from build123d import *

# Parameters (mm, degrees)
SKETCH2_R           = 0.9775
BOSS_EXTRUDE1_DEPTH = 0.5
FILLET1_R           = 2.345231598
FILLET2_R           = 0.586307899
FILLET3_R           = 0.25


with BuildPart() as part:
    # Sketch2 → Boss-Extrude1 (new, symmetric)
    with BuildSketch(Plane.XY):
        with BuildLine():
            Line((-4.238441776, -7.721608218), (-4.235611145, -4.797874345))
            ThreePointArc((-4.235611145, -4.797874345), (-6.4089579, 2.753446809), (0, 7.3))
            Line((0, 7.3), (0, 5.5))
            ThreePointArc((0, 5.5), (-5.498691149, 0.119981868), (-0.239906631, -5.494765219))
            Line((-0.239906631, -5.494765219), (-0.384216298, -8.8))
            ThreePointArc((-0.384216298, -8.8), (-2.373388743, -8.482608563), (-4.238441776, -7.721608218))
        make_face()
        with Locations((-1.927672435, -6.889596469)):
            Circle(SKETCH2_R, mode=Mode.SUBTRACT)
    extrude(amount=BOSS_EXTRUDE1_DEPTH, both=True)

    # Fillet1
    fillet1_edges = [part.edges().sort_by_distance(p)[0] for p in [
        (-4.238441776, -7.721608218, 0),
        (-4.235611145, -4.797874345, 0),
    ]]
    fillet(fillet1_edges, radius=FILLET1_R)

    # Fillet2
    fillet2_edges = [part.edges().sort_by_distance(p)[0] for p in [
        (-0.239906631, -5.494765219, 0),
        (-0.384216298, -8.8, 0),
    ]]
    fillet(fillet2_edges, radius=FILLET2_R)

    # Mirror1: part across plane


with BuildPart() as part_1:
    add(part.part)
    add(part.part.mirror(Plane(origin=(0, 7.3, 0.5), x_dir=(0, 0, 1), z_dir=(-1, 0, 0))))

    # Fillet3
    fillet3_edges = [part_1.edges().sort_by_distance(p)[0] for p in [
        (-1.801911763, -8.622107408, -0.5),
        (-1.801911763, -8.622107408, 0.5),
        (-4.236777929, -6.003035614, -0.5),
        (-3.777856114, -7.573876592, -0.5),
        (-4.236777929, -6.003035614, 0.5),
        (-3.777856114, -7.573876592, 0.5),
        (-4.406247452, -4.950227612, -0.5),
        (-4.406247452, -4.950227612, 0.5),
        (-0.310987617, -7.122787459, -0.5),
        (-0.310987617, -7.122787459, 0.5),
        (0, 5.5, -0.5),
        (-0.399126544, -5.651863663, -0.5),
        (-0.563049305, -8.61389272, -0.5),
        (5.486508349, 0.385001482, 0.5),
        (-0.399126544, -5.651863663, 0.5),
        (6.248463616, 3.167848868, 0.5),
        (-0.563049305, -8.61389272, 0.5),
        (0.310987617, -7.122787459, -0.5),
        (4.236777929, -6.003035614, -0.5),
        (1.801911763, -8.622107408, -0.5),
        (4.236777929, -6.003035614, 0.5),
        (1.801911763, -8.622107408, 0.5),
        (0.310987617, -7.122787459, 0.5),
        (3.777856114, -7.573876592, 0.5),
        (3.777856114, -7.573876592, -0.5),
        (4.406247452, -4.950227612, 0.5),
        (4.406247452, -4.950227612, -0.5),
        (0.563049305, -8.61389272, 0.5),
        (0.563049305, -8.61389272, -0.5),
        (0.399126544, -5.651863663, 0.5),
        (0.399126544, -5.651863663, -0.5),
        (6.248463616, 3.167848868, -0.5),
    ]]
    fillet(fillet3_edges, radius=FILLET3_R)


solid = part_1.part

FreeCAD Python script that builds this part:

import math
import FreeCAD as App
import Part
import Sketcher
Q = App.Units.Quantity


def edges_at(feature, points):
    """Names of the edges that pass closest to the given points."""
    edges = feature.Shape.Edges
    near = lambda p: min(range(len(edges)), key=lambda i: edges[i].distToShape(Part.Vertex(*p))[0])
    return sorted({f"Edge{near(p) + 1}" for p in points})

doc = App.newDocument("Part")
params = doc.addObject("Spreadsheet::Sheet", "Params")
for row, (alias, value) in enumerate([
    ("sketch1_radius", "5.5 mm"),
    ("sketch1_height", "1.8 mm"),
    ("pad1_length", "1 mm"),
    ("fillet_radius", "2.345232 mm"),
    ("fillet2_radius", "0.586308 mm"),
    ("fillet3_radius", "0.25 mm"),
], start=1):
    params.set(f"A{row}", alias)
    params.set(f"B{row}", "=" + value)
    params.setAlias(f"B{row}", alias)

body = doc.addObject("PartDesign::Body", "Body")

# Sketch on XY plane
sketch1 = body.newObject("Sketcher::SketchObject", "Sketch")
sketch1.AttachmentSupport = (doc.getObject("XY_Plane"), [""])
sketch1.MapMode = "FlatFace"
sketch1.addGeometry([
    Part.LineSegment(App.Vector(-4.2, -4.8, 0), App.Vector(-4.2, -7.7, 0)),  # 0
    Part.ArcOfCircle(Part.Circle(App.Vector(0, 0, 0), App.Vector(0, 0, 1), 8.8), math.radians(-119), math.radians(-93)),  # 1
    Part.LineSegment(App.Vector(-0.4, -8.8, 0), App.Vector(-0.2, -5.5, 0)),  # 2
    Part.ArcOfCircle(Part.Circle(App.Vector(0, 0, 0), App.Vector(0, 0, 1), 5.5), math.radians(90), math.radians(267)),  # 3
    Part.LineSegment(App.Vector(0, 5.5, 0), App.Vector(0, 7.3, 0)),  # 4
    Part.ArcOfCircle(Part.Circle(App.Vector(0, 0.5, 0), App.Vector(0, 0, 1), 6.8), math.radians(90), math.radians(231)),  # 5
    Part.Circle(App.Vector(-1.9, -6.9, 0), App.Vector(0, 0, 1), 1),  # 6
], False)
sketch1.addConstraint([
    Sketcher.Constraint("Coincident", 0, 2, 1, 1),
    Sketcher.Constraint("Coincident", 1, 2, 2, 1),
    Sketcher.Constraint("Coincident", 2, 2, 3, 2),
    Sketcher.Constraint("Coincident", 3, 1, 4, 1),
    Sketcher.Constraint("Coincident", 4, 2, 5, 1),
    Sketcher.Constraint("Coincident", 5, 2, 0, 1),
    Sketcher.Constraint("Vertical", 4),
    Sketcher.Constraint("Coincident", 1, 3, -1, 1),
    Sketcher.Constraint("Coincident", 3, 3, -1, 1),
    Sketcher.Constraint("PointOnObject", 5, 3, -2),
    Sketcher.Constraint("PointOnObject", 3, 1, -2),
    Sketcher.Constraint("Radius", 3, Q("5.5 mm")),
    Sketcher.Constraint("Diameter", 6, Q("1.955 mm")),
    Sketcher.Constraint("DistanceY", 4, 1, 4, 2, Q("1.8 mm")),
    Sketcher.Constraint("Angle", 2, Q("87.5 deg")),
    Sketcher.Constraint("DistanceY", 1, 2, -1, 1, Q("8.8 mm")),
    Sketcher.Constraint("Radius", 1, Q("8.808384 mm")),
    Sketcher.Constraint("Radius", 5, Q("6.790406 mm")),
    Sketcher.Constraint("DistanceY", 0, 2, 5, 3, Q("8.231202 mm")),
    Sketcher.Constraint("DistanceX", 5, 2, -1, 1, Q("4.235611 mm")),
    Sketcher.Constraint("DistanceY", 6, 3, 5, 3, Q("7.39919 mm")),
    Sketcher.Constraint("DistanceX", 0, 2, 6, 3, Q("2.310769 mm")),
])
sketch1.setExpression("Constraints[11]", "Params.sketch1_radius")
sketch1.setExpression("Constraints[13]", "Params.sketch1_height")
pad1 = body.newObject("PartDesign::Pad", "Pad")
pad1.Profile = sketch1
pad1.setExpression("Length", "Params.pad1_length")
pad1.Midplane = True
doc.recompute()

fillet = body.newObject("PartDesign::Fillet", "Fillet")
fillet.Base = (pad1, edges_at(pad1, [(-4.238, -7.722, 0), (-4.236, -4.798, 0)]))
fillet.setExpression("Radius", "Params.fillet_radius")
doc.recompute()

fillet2 = body.newObject("PartDesign::Fillet", "Fillet001")
fillet2.Base = (fillet, edges_at(fillet, [(-0.24, -5.495, 0), (-0.384, -8.8, 0)]))
fillet2.setExpression("Radius", "Params.fillet2_radius")
body2 = doc.addObject("PartDesign::Body", "Body001")
doc.recompute()

body2.BaseFeature = body
doc.recompute()

mirroring = doc.addObject("Part::Mirroring", "Mirroring")
mirroring.Source = body
mirroring.Base = App.Vector(0, 7.3, 0.5)
mirroring.Normal = App.Vector(-1, 0, 0)
body3 = doc.addObject("PartDesign::Body", "Body002")
body3.BaseFeature = mirroring
boolean = body2.newObject("PartDesign::Boolean", "Boolean")
boolean.Type = "Fuse"
boolean.addObjects([body3])
doc.recompute()

fillet3 = body2.newObject("PartDesign::Fillet", "Fillet002")
fillet3.Base = (boolean, edges_at(boolean, [
    (-1.802, -8.622, -0.5),
    (-1.802, -8.622, 0.5),
    (-4.237, -6.003, -0.5),
    (-3.778, -7.574, -0.5),
    (-4.237, -6.003, 0.5),
    (-3.778, -7.574, 0.5),
    (-4.406, -4.95, -0.5),
    (-4.406, -4.95, 0.5),
    (-0.311, -7.123, -0.5),
    (-0.311, -7.123, 0.5),
    (-5.487, 0.385, -0.5),
    (-0.399, -5.652, -0.5),
    (-0.563, -8.614, -0.5),
    (5.487, 0.385, 0.5),
    (-0.399, -5.652, 0.5),
    (6.248, 3.168, 0.5),
    (-0.563, -8.614, 0.5),
    (0.311, -7.123, -0.5),
    (4.237, -6.003, -0.5),
    (1.802, -8.622, -0.5),
    (4.237, -6.003, 0.5),
    (1.802, -8.622, 0.5),
    (0.311, -7.123, 0.5),
    (3.778, -7.574, 0.5),
    (3.778, -7.574, -0.5),
    (4.406, -4.95, 0.5),
    (4.406, -4.95, -0.5),
    (0.563, -8.614, 0.5),
    (0.563, -8.614, -0.5),
    (0.399, -5.652, 0.5),
    (0.399, -5.652, -0.5),
    (6.248, 3.168, -0.5),
]))
fillet3.setExpression("Radius", "Params.fillet3_radius")
mirroring.Visibility = False

doc.recompute()
